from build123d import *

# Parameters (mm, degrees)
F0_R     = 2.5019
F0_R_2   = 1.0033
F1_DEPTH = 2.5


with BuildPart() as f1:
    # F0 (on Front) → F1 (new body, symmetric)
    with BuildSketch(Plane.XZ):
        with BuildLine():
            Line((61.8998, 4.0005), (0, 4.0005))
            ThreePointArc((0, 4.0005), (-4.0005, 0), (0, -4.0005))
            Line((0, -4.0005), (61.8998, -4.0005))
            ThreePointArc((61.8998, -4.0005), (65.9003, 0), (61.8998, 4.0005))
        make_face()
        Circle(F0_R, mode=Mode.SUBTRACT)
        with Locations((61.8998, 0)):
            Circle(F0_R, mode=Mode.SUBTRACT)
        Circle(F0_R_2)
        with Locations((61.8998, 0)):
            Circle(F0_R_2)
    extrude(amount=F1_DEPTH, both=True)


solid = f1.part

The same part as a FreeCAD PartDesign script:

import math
import FreeCAD as App
import Part
import Sketcher

V = App.Vector
Q = App.Units.Quantity

doc = App.newDocument("Part")
body = doc.addObject("PartDesign::Body", "Body")
body.AllowCompound = True

# Sketch on XZ plane
sketch1 = doc.addObject("Sketcher::SketchObject", "Sketch")
body.addObject(sketch1)
sketch1.AttachmentSupport = (doc.XZ_Plane, [""])
sketch1.MapMode = "FlatFace"
sketch1.addGeometry([
    Part.LineSegment(V(61.9, 4, 0), V(0, 4, 0)),  # 0
    Part.ArcOfCircle(Part.Circle(V(0, 0, 0), V(0, 0, 1), 4), math.radians(90), math.radians(270)),  # 1
    Part.LineSegment(V(0, -4, 0), V(61.9, -4, 0)),  # 2
    Part.ArcOfCircle(Part.Circle(V(61.9, 0, 0), V(0, 0, 1), 4), math.radians(-90), math.radians(90)),  # 3
    Part.Circle(V(0, 0, 0), V(0, 0, 1), 2.5),  # 4
    Part.Circle(V(61.9, 0, 0), V(0, 0, 1), 2.5),  # 5
    Part.Circle(V(0, 0, 0), V(0, 0, 1), 1),  # 6
    Part.Circle(V(61.9, 0, 0), V(0, 0, 1), 1),  # 7
], False)
sketch1.addConstraint([
    Sketcher.Constraint("Tangent", 0, 2, 1, 1),
    Sketcher.Constraint("Tangent", 1, 2, 2, 1),
    Sketcher.Constraint("Tangent", 2, 2, 3, 1),
    Sketcher.Constraint("Tangent", 3, 2, 0, 1),
    Sketcher.Constraint("Horizontal", 0),
    Sketcher.Constraint("Horizontal", 2),
    Sketcher.Constraint("Coincident", 1, 3, -1, 1),
    Sketcher.Constraint("Coincident", 4, 3, -1, 1),
    Sketcher.Constraint("Coincident", 6, 3, -1, 1),
    Sketcher.Constraint("Coincident", 5, 3, 3, 3),
    Sketcher.Constraint("Coincident", 7, 3, 3, 3),
    Sketcher.Constraint("Equal", 4, 5),
    Sketcher.Constraint("Equal", 6, 7),
    Sketcher.Constraint("Diameter", 4, Q("0.197 in")),
    Sketcher.Constraint("Diameter", 6, Q("0.079 in")),
    Sketcher.Constraint("Radius", 1, Q("0.1575 in")),
    Sketcher.Constraint("DistanceX", 0, 2, 0, 1, Q("2.437 in")),
])
pad1 = doc.addObject("PartDesign::Pad", "Pad")
body.addObject(pad1)
pad1.Profile = sketch1
pad1.Length = 5
pad1.Midplane = True

doc.recompute()
